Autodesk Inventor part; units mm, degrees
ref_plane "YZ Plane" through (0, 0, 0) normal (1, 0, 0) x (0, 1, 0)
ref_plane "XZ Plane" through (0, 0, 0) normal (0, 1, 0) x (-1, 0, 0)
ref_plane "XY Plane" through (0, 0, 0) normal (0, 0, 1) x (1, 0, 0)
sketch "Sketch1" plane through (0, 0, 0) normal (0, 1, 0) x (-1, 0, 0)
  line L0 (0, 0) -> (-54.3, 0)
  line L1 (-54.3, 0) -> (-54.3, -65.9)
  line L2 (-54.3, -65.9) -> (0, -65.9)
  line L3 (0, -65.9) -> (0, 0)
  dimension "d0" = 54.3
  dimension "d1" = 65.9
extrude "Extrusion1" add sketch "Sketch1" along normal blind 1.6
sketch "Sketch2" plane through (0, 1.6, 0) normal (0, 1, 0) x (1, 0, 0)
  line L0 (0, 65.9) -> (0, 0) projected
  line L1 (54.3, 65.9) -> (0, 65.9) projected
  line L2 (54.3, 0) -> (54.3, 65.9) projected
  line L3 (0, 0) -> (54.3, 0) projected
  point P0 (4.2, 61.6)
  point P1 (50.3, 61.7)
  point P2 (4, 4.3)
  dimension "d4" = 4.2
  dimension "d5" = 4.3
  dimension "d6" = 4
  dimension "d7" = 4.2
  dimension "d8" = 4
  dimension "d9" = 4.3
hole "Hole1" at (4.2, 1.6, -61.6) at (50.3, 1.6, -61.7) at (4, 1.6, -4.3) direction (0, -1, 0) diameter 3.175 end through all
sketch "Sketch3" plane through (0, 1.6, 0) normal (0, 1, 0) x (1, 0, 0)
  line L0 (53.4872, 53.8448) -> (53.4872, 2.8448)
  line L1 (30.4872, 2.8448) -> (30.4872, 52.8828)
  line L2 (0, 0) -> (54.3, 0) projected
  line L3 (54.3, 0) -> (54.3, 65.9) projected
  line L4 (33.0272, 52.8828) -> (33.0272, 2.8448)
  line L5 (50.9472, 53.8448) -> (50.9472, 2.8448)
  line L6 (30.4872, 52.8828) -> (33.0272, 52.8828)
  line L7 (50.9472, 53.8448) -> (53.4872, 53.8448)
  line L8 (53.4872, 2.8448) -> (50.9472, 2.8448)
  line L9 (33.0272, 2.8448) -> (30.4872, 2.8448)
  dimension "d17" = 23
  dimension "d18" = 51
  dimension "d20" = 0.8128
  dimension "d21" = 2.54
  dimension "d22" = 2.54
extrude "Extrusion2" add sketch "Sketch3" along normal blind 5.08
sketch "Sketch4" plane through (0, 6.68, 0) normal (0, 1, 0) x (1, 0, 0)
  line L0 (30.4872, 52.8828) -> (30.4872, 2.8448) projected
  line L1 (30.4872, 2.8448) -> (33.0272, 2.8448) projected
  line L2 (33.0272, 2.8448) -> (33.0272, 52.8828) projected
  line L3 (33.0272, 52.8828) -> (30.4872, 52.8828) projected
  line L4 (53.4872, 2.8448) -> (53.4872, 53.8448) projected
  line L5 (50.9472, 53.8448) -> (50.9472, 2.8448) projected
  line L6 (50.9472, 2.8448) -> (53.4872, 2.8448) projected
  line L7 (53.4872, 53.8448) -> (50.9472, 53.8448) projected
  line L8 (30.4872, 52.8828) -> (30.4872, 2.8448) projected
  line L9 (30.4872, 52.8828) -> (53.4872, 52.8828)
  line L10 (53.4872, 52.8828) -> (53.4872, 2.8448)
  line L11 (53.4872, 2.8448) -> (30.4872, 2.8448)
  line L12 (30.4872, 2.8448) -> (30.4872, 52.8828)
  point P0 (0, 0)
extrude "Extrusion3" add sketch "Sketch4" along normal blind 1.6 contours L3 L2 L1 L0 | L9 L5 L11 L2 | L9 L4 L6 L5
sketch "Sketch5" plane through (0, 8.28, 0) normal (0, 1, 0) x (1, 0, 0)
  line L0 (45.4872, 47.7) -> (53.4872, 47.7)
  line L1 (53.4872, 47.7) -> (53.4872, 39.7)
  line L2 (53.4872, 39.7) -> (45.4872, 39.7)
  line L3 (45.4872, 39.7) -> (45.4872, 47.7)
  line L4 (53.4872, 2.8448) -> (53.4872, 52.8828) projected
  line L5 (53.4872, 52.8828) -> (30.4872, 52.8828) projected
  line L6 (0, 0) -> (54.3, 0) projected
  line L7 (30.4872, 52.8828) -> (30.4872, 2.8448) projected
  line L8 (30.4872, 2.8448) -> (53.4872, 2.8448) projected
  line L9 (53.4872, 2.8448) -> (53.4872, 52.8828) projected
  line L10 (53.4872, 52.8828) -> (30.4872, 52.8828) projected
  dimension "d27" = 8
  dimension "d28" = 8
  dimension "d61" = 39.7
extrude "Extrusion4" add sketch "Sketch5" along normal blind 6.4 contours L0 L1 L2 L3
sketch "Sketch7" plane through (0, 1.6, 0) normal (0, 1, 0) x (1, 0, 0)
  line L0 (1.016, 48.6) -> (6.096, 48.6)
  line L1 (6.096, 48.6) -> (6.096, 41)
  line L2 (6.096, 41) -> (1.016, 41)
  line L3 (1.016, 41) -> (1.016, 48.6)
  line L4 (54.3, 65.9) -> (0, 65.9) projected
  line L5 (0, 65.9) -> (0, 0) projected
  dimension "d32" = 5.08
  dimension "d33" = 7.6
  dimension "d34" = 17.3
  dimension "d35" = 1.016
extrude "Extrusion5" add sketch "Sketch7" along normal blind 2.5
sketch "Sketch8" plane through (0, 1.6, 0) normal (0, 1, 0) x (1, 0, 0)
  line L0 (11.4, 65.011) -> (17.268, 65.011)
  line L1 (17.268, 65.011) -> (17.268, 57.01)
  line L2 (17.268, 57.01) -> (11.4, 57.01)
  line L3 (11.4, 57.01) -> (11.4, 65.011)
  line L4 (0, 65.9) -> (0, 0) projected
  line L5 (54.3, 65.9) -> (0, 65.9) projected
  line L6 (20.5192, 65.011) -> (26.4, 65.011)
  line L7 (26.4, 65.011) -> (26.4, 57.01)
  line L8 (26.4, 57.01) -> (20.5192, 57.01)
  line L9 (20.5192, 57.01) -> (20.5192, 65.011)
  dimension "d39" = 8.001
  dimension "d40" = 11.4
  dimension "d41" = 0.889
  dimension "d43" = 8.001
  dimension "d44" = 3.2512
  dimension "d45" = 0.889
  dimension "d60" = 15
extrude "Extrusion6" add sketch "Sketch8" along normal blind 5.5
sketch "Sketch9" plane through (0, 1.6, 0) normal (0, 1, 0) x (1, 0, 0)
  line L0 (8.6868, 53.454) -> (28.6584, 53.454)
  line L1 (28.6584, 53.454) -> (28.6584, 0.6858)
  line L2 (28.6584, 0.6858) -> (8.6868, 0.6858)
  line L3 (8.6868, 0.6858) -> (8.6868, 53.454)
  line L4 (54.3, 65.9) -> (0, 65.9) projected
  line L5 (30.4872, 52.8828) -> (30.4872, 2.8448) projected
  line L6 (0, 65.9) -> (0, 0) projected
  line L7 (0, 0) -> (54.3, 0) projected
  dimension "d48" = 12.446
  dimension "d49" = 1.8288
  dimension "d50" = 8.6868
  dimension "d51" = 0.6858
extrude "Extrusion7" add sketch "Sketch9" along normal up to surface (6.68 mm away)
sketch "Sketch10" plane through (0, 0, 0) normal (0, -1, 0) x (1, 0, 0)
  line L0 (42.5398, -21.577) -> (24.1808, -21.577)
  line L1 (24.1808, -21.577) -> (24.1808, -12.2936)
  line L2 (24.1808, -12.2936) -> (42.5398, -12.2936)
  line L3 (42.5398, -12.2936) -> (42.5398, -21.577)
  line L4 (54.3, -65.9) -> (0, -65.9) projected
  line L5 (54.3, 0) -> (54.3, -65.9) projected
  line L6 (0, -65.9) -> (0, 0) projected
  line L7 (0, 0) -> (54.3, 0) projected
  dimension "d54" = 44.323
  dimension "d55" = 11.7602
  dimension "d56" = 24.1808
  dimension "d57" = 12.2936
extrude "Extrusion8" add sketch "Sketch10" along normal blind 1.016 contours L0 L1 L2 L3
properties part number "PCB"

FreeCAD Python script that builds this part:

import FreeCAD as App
import Part
import Sketcher

V = App.Vector
Q = App.Units.Quantity


def add_polygon(sketch, points):
    """Adds a closed chain of lines whose ends are joined by coincident constraints."""
    first, n = sketch.GeometryCount, len(points)
    for a, b in zip(points, points[1:] + points[:1]):
        sketch.addGeometry(Part.LineSegment(App.Vector(*a, 0), App.Vector(*b, 0)), False)
    for i in range(n):
        sketch.addConstraint(Sketcher.Constraint("Coincident", first + i, 2, first + (i + 1) % n, 1))

doc = App.newDocument("Part")
body = doc.addObject("PartDesign::Body", "Body")

# Sketch on XZ plane
sketch1 = body.newObject("Sketcher::SketchObject", "Sketch")
sketch1.AttachmentSupport = (doc.getObject("XZ_Plane"), [""])
sketch1.MapMode = "FlatFace"
add_polygon(sketch1, [(0, -66), (0, 0), (54, 0), (54, -66)])  # lines 0-3
sketch1.addConstraint(Sketcher.Constraint("Vertical", 0))
sketch1.addConstraint(Sketcher.Constraint("Horizontal", 1))
sketch1.addConstraint(Sketcher.Constraint("Vertical", 2))
sketch1.addConstraint(Sketcher.Constraint("Horizontal", 3))
sketch1.addConstraint(Sketcher.Constraint("Coincident", 0, 2, -1, 1))
sketch1.addConstraint(Sketcher.Constraint("DistanceX", 1, 1, 1, 2, Q("2.1378 in")))
sketch1.addConstraint(Sketcher.Constraint("DistanceY", 0, 1, 0, 2, Q("2.5945 in")))
pad1 = body.newObject("PartDesign::Pad", "Pad")
pad1.Profile = sketch1
pad1.Length = Q("0.0629921 in")
pad1.Reversed = True

# Sketch on XZ plane
sketch2 = body.newObject("Sketcher::SketchObject", "Sketch001")
sketch2.AttachmentSupport = (doc.getObject("XZ_Plane"), [""])
sketch2.MapMode = "FlatFace"
sketch2.AttachmentOffset = App.Placement(V(0, 0, -0.0629921 * 25.4), App.Rotation())
sketch2.addGeometry(Part.Circle(V(4.2, -61.6, 0), V(0, 0, 1), 1.6), False)
sketch2.addGeometry(Part.Circle(V(50.3, -61.7, 0), V(0, 0, 1), 1.6), False)
sketch2.addGeometry(Part.Circle(V(4, -4.3, 0), V(0, 0, 1), 1.6), False)
sketch2.addConstraint(Sketcher.Constraint("Equal", 0, 1))
sketch2.addConstraint(Sketcher.Constraint("Equal", 1, 2))
sketch2.addConstraint(Sketcher.Constraint("Diameter", 0, Q("0.125 in")))
sketch2.addConstraint(Sketcher.Constraint("DistanceY", 0, 3, -1, 1, Q("2.4252 in")))
sketch2.addConstraint(Sketcher.Constraint("DistanceY", 2, 3, -1, 1, Q("0.1693 in")))
sketch2.addConstraint(Sketcher.Constraint("DistanceX", -1, 1, 0, 3, Q("4.2 mm")))
sketch2.addConstraint(Sketcher.Constraint("DistanceX", -1, 1, 1, 3, Q("50.3 mm")))
sketch2.addConstraint(Sketcher.Constraint("DistanceY", 1, 3, -1, 1, Q("61.7 mm")))
sketch2.addConstraint(Sketcher.Constraint("DistanceX", -1, 1, 2, 3, Q("4 mm")))
doc.recompute()
hole = body.newObject("PartDesign::Hole", "Hole")
hole.Profile = sketch2
hole.ThreadType = "None"
hole.Diameter = Q("0.125 in")
hole.DepthType = "ThroughAll"
hole.Reversed = True

# Sketch on XZ plane
sketch3 = body.newObject("Sketcher::SketchObject", "Sketch002")
sketch3.AttachmentSupport = (doc.getObject("XZ_Plane"), [""])
sketch3.MapMode = "FlatFace"
sketch3.AttachmentOffset = App.Placement(V(0, 0, -0.0629921 * 25.4), App.Rotation())
add_polygon(sketch3, [(53.5, -2.8), (53.5, -53.8), (50.9, -53.8), (50.9, -2.8)])  # lines 0-3
add_polygon(sketch3, [(30.5, -52.9), (30.5, -2.8), (33, -2.8), (33, -52.9)])  # lines 4-7
sketch3.addConstraint(Sketcher.Constraint("Vertical", 0))
sketch3.addConstraint(Sketcher.Constraint("Horizontal", 1))
sketch3.addConstraint(Sketcher.Constraint("Vertical", 2))
sketch3.addConstraint(Sketcher.Constraint("Horizontal", 3))
sketch3.addConstraint(Sketcher.Constraint("Vertical", 4))
sketch3.addConstraint(Sketcher.Constraint("Horizontal", 5))
sketch3.addConstraint(Sketcher.Constraint("Vertical", 6))
sketch3.addConstraint(Sketcher.Constraint("Horizontal", 7))
sketch3.addConstraint(Sketcher.Constraint("Horizontal", 3, 2, 4, 2))
sketch3.addConstraint(Sketcher.Constraint("Equal", 3, 5))
sketch3.addConstraint(Sketcher.Constraint("DistanceX", 1, 2, 1, 1, Q("0.1 in")))
sketch3.addConstraint(Sketcher.Constraint("DistanceY", 0, 2, 0, 1, Q("51 mm")))
sketch3.addConstraint(Sketcher.Constraint("DistanceY", 4, 1, 4, 2, Q("1.97 in")))
sketch3.addConstraint(Sketcher.Constraint("DistanceX", 4, 2, 3, 2, Q("0.9055 in")))
sketch3.addConstraint(Sketcher.Constraint("DistanceY", 2, 2, -1, 1, Q("0.112 in")))
sketch3.addConstraint(Sketcher.Constraint("DistanceX", -1, 1, 0, 2, Q("2.1058 in")))
pad2 = body.newObject("PartDesign::Pad", "Pad001")
pad2.Profile = sketch3
pad2.Length = Q("0.2 in")
pad2.Reversed = True

# Sketch on XZ plane
sketch4 = body.newObject("Sketcher::SketchObject", "Sketch003")
sketch4.AttachmentSupport = (doc.getObject("XZ_Plane"), [""])
sketch4.MapMode = "FlatFace"
sketch4.AttachmentOffset = App.Placement(V(0, 0, -0.2629921 * 25.4), App.Rotation())
add_polygon(sketch4, [(30, -53), (30, -3), (53, -3), (53, -53)])  # lines 0-3
sketch4.addConstraint(Sketcher.Constraint("Vertical", 0))
sketch4.addConstraint(Sketcher.Constraint("Horizontal", 1))
sketch4.addConstraint(Sketcher.Constraint("Vertical", 2))
sketch4.addConstraint(Sketcher.Constraint("Horizontal", 3))
sketch4.addConstraint(Sketcher.Constraint("DistanceY", 0, 1, 0, 2, Q("1.97 in")))
sketch4.addConstraint(Sketcher.Constraint("DistanceX", 1, 1, 1, 2, Q("0.9055 in")))
sketch4.addConstraint(Sketcher.Constraint("DistanceY", 0, 2, -1, 1, Q("0.112 in")))
sketch4.addConstraint(Sketcher.Constraint("DistanceX", -1, 1, 1, 2, Q("2.1058 in")))
pad3 = body.newObject("PartDesign::Pad", "Pad002")
pad3.Profile = sketch4
pad3.Length = Q("0.0629921 in")
pad3.Reversed = True

# Sketch on XZ plane
sketch5 = body.newObject("Sketcher::SketchObject", "Sketch004")
sketch5.AttachmentSupport = (doc.getObject("XZ_Plane"), [""])
sketch5.MapMode = "FlatFace"
sketch5.AttachmentOffset = App.Placement(V(0, 0, -8.28), App.Rotation())
add_polygon(sketch5, [(53, -48), (45, -48), (45, -40), (53, -40)])  # lines 0-3
sketch5.addConstraint(Sketcher.Constraint("Horizontal", 0))
sketch5.addConstraint(Sketcher.Constraint("Vertical", 1))
sketch5.addConstraint(Sketcher.Constraint("Horizontal", 2))
sketch5.addConstraint(Sketcher.Constraint("Vertical", 3))
sketch5.addConstraint(Sketcher.Constraint("Equal", 2, 1))
sketch5.addConstraint(Sketcher.Constraint("DistanceY", 1, 2, -1, 1, Q("1.563 in")))
sketch5.addConstraint(Sketcher.Constraint("DistanceX", 0, 2, 0, 1, Q("8 mm")))
sketch5.addConstraint(Sketcher.Constraint("DistanceX", -1, 1, 2, 2, Q("2.1058 in")))
pad4 = body.newObject("PartDesign::Pad", "Pad003")
pad4.Profile = sketch5
pad4.Length = 6.4
pad4.Reversed = True

# Sketch on XZ plane
sketch6 = body.newObject("Sketcher::SketchObject", "Sketch005")
sketch6.AttachmentSupport = (doc.getObject("XZ_Plane"), [""])
sketch6.MapMode = "FlatFace"
sketch6.AttachmentOffset = App.Placement(V(0, 0, -0.0629921 * 25.4), App.Rotation())
add_polygon(sketch6, [(6, -49), (1, -49), (1, -41), (6, -41)])  # lines 0-3
sketch6.addConstraint(Sketcher.Constraint("Horizontal", 0))
sketch6.addConstraint(Sketcher.Constraint("Vertical", 1))
sketch6.addConstraint(Sketcher.Constraint("Horizontal", 2))
sketch6.addConstraint(Sketcher.Constraint("Vertical", 3))
sketch6.addConstraint(Sketcher.Constraint("DistanceX", 0, 2, 0, 1, Q("0.2 in")))
sketch6.addConstraint(Sketcher.Constraint("DistanceX", -1, 1, 0, 2, Q("0.04 in")))
sketch6.addConstraint(Sketcher.Constraint("DistanceY", 1, 1, 1, 2, Q("7.6 mm")))
sketch6.addConstraint(Sketcher.Constraint("DistanceY", 0, 2, -1, 1, Q("48.6 mm")))
pad5 = body.newObject("PartDesign::Pad", "Pad004")
pad5.Profile = sketch6
pad5.Length = 2.5
pad5.Reversed = True

# Sketch on XZ plane
sketch7 = body.newObject("Sketcher::SketchObject", "Sketch006")
sketch7.AttachmentSupport = (doc.getObject("XZ_Plane"), [""])
sketch7.MapMode = "FlatFace"
sketch7.AttachmentOffset = App.Placement(V(0, 0, -0.0629921 * 25.4), App.Rotation())
add_polygon(sketch7, [(17, -65), (11, -65), (11, -57), (17, -57)])  # lines 0-3
add_polygon(sketch7, [(26, -65), (21, -65), (21, -57), (26, -57)])  # lines 4-7
sketch7.addConstraint(Sketcher.Constraint("Horizontal", 0))
sketch7.addConstraint(Sketcher.Constraint("Vertical", 1))
sketch7.addConstraint(Sketcher.Constraint("Horizontal", 2))
sketch7.addConstraint(Sketcher.Constraint("Vertical", 3))
sketch7.addConstraint(Sketcher.Constraint("Horizontal", 4))
sketch7.addConstraint(Sketcher.Constraint("Vertical", 5))
sketch7.addConstraint(Sketcher.Constraint("Horizontal", 6))
sketch7.addConstraint(Sketcher.Constraint("Vertical", 7))
sketch7.addConstraint(Sketcher.Constraint("Horizontal", 3, 2, 4, 2))
sketch7.addConstraint(Sketcher.Constraint("Horizontal", 2, 2, 5, 2))
sketch7.addConstraint(Sketcher.Constraint("DistanceY", 1, 1, 1, 2, Q("0.315 in")))
sketch7.addConstraint(Sketcher.Constraint("DistanceX", 3, 2, 4, 2, Q("0.128 in")))
sketch7.addConstraint(Sketcher.Constraint("DistanceX", -1, 1, 0, 2, Q("11.4 mm")))
sketch7.addConstraint(Sketcher.Constraint("DistanceX", 1, 2, 6, 2, Q("15 mm")))
sketch7.addConstraint(Sketcher.Constraint("DistanceX", 0, 2, 0, 1, Q("5.868 mm")))
sketch7.addConstraint(Sketcher.Constraint("DistanceY", 0, 2, -1, 1, Q("2.5595 in")))
pad6 = body.newObject("PartDesign::Pad", "Pad005")
pad6.Profile = sketch7
pad6.Length = 5.5
pad6.Reversed = True

# Sketch on XZ plane
sketch8 = body.newObject("Sketcher::SketchObject", "Sketch007")
sketch8.AttachmentSupport = (doc.getObject("XZ_Plane"), [""])
sketch8.MapMode = "FlatFace"
sketch8.AttachmentOffset = App.Placement(V(0, 0, -0.0629921 * 25.4), App.Rotation())
add_polygon(sketch8, [(29, -53), (9, -53), (9, -1), (29, -1)])  # lines 0-3
sketch8.addConstraint(Sketcher.Constraint("Horizontal", 0))
sketch8.addConstraint(Sketcher.Constraint("Vertical", 1))
sketch8.addConstraint(Sketcher.Constraint("Horizontal", 2))
sketch8.addConstraint(Sketcher.Constraint("Vertical", 3))
sketch8.addConstraint(Sketcher.Constraint("DistanceX", -1, 1, 0, 2, Q("0.342 in")))
sketch8.addConstraint(Sketcher.Constraint("DistanceY", 1, 2, -1, 1, Q("0.027 in")))
sketch8.addConstraint(Sketcher.Constraint("DistanceY", 1, 1, 1, 2, Q("2.0775 in")))
sketch8.addConstraint(Sketcher.Constraint("DistanceX", 0, 2, 0, 1, Q("19.9716 mm")))
pad7 = body.newObject("PartDesign::Pad", "Pad006")
pad7.Profile = sketch8
pad7.Length = Q("0.2629921 in")
pad7.Reversed = True

# Sketch on XZ plane
sketch9 = body.newObject("Sketcher::SketchObject", "Sketch008")
sketch9.AttachmentSupport = (doc.getObject("XZ_Plane"), [""])
sketch9.MapMode = "FlatFace"
add_polygon(sketch9, [(24, -22), (43, -22), (43, -12), (24, -12)])  # lines 0-3
sketch9.addConstraint(Sketcher.Constraint("Horizontal", 0))
sketch9.addConstraint(Sketcher.Constraint("Vertical", 1))
sketch9.addConstraint(Sketcher.Constraint("Horizontal", 2))
sketch9.addConstraint(Sketcher.Constraint("Vertical", 3))
sketch9.addConstraint(Sketcher.Constraint("DistanceY", 1, 2, -1, 1, Q("0.484 in")))
sketch9.addConstraint(Sketcher.Constraint("DistanceX", -1, 1, 2, 2, Q("0.952 in")))
sketch9.addConstraint(Sketcher.Constraint("DistanceX", 0, 1, 0, 2, Q("0.7228 in")))
sketch9.addConstraint(Sketcher.Constraint("DistanceY", 1, 1, 1, 2, Q("0.3655 in")))
pad8 = body.newObject("PartDesign::Pad", "Pad007")
pad8.Profile = sketch9
pad8.Length = Q("0.04 in")

doc.recompute()
